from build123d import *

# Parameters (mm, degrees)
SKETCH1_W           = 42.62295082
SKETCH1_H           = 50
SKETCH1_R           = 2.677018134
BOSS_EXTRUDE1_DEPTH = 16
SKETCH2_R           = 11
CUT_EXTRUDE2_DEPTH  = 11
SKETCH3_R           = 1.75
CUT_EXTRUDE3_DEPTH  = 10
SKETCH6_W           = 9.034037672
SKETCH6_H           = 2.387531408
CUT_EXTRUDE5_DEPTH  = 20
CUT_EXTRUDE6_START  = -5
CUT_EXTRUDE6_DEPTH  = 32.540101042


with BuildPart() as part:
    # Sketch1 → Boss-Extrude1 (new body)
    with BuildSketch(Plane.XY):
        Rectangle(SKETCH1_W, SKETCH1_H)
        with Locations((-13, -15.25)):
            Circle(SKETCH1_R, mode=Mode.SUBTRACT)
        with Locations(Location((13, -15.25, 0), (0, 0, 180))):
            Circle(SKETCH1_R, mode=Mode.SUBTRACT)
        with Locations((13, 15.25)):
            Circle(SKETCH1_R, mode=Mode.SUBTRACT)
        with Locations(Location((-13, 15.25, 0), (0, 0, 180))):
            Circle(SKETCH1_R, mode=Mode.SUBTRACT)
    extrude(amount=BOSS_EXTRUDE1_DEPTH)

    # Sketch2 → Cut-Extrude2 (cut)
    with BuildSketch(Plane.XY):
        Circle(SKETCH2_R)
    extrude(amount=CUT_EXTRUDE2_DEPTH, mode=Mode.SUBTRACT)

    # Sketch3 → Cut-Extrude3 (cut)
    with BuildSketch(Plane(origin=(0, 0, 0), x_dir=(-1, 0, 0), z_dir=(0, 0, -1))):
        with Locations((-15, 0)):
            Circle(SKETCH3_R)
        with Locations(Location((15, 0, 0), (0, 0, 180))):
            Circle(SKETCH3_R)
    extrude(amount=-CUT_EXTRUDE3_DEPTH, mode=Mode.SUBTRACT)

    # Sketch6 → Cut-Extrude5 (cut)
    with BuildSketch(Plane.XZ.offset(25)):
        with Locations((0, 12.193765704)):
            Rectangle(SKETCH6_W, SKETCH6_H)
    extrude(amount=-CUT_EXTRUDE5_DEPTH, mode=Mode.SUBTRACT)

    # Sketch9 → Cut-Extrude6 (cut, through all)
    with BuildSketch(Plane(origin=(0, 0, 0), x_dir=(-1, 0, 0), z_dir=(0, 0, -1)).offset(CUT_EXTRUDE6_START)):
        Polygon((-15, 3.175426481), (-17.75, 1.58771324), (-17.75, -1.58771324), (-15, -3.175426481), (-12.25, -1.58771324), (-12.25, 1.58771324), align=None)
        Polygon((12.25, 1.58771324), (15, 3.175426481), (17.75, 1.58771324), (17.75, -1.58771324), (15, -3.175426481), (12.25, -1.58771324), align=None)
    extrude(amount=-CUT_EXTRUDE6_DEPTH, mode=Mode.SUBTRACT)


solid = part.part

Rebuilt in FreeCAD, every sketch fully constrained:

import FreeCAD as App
import Part
import Sketcher

V = App.Vector
Q = App.Units.Quantity


def add_polygon(sketch, points):
    """Adds a closed chain of lines whose ends are joined by coincident constraints."""
    first, n = sketch.GeometryCount, len(points)
    for a, b in zip(points, points[1:] + points[:1]):
        sketch.addGeometry(Part.LineSegment(App.Vector(*a, 0), App.Vector(*b, 0)), False)
    for i in range(n):
        sketch.addConstraint(Sketcher.Constraint("Coincident", first + i, 2, first + (i + 1) % n, 1))

doc = App.newDocument("Part")
body = doc.addObject("PartDesign::Body", "Body")

# Sketch on XY plane
sketch1 = body.newObject("Sketcher::SketchObject", "Sketch")
sketch1.AttachmentSupport = (doc.getObject("XY_Plane"), [""])
sketch1.MapMode = "FlatFace"
add_polygon(sketch1, [(-21.3, 25), (-21.3, -25), (21.3, -25), (21.3, 25)])  # lines 0-3
sketch1.addGeometry(Part.Circle(V(-13, -15.2, 0), V(0, 0, 1), 2.7), False)  # 4
sketch1.addGeometry(Part.Circle(V(13, -15.2, 0), V(0, 0, 1), 2.7), False)  # 5
sketch1.addGeometry(Part.Circle(V(-13, 15.2, 0), V(0, 0, 1), 2.7), False)  # 6
sketch1.addGeometry(Part.Circle(V(13, 15.2, 0), V(0, 0, 1), 2.7), False)  # 7
sketch1.addConstraint([
    Sketcher.Constraint("Vertical", 0),
    Sketcher.Constraint("Horizontal", 1),
    Sketcher.Constraint("Vertical", 2),
    Sketcher.Constraint("Horizontal", 3),
    Sketcher.Constraint("Equal", 4, 5),
    Sketcher.Constraint("Equal", 5, 6),
    Sketcher.Constraint("Equal", 6, 7),
    Sketcher.Constraint("Symmetric", 5, 3, 6, 3, -1, 1),
    Sketcher.Constraint("Symmetric", 4, 3, 7, 3, -1, 1),
    Sketcher.Constraint("Symmetric", 0, 2, 2, 2, -1, 1),
    Sketcher.Constraint("Symmetric", 4, 3, 5, 3, -2),
    Sketcher.Constraint("DistanceY", 0, 2, 0, 1, Q("50 mm")),
    Sketcher.Constraint("DistanceX", 4, 3, -1, 1, Q("13 mm")),
    Sketcher.Constraint("DistanceY", 4, 3, 6, 3, Q("30.5 mm")),
    Sketcher.Constraint("Diameter", 4, Q("5.354036 mm")),
    Sketcher.Constraint("DistanceX", 1, 1, 1, 2, Q("42.622951 mm")),
])
pad1 = body.newObject("PartDesign::Pad", "Pad")
pad1.Profile = sketch1
pad1.Length = 16

# Sketch on XY plane
sketch2 = body.newObject("Sketcher::SketchObject", "Sketch001")
sketch2.AttachmentSupport = (doc.getObject("XY_Plane"), [""])
sketch2.MapMode = "FlatFace"
sketch2.addGeometry(Part.Circle(V(0, 0, 0), V(0, 0, 1), 11), False)
sketch2.addConstraint([
    Sketcher.Constraint("Coincident", 0, 3, -1, 1),
    Sketcher.Constraint("Diameter", 0, Q("22 mm")),
])
pocket1 = body.newObject("PartDesign::Pocket", "Pocket")
pocket1.Profile = sketch2
pocket1.Length = 11
pocket1.Reversed = True

# Sketch on XY plane
sketch3 = body.newObject("Sketcher::SketchObject", "Sketch002")
sketch3.AttachmentSupport = (doc.getObject("XY_Plane"), [""])
sketch3.MapMode = "FlatFace"
sketch3.addGeometry([
    Part.Circle(V(15, 0, 0), V(0, 0, 1), 1.8),
    Part.Circle(V(-15, 0, 0), V(0, 0, 1), 1.8),
], False)
sketch3.addConstraint([
    Sketcher.Constraint("Equal", 0, 1),
    Sketcher.Constraint("Symmetric", 0, 3, 1, 3, -1, 1),
    Sketcher.Constraint("PointOnObject", 0, 3, -1),
    Sketcher.Constraint("Diameter", 0, Q("3.5 mm")),
    Sketcher.Constraint("DistanceX", -1, 1, 0, 3, Q("15 mm")),
])
pocket2 = body.newObject("PartDesign::Pocket", "Pocket001")
pocket2.Profile = sketch3
pocket2.Length = 10
pocket2.Reversed = True

# Sketch on XZ plane
sketch4 = body.newObject("Sketcher::SketchObject", "Sketch003")
sketch4.AttachmentSupport = (doc.getObject("XZ_Plane"), [""])
sketch4.MapMode = "FlatFace"
sketch4.AttachmentOffset = App.Placement(V(0, 0, 25), App.Rotation())
add_polygon(sketch4, [(-4.5, 13.4), (-4.5, 11), (4.5, 11), (4.5, 13.4)])  # lines 0-3
sketch4.addConstraint([
    Sketcher.Constraint("Vertical", 0),
    Sketcher.Constraint("Horizontal", 1),
    Sketcher.Constraint("Vertical", 2),
    Sketcher.Constraint("Horizontal", 3),
    Sketcher.Constraint("DistanceY", -1, 1, 0, 2, Q("11 mm")),
    Sketcher.Constraint("DistanceY", 0, 2, 0, 1, Q("2.387531 mm")),
    Sketcher.Constraint("DistanceX", 1, 1, 1, 2, Q("9.034038 mm")),
    Sketcher.Constraint("DistanceX", 0, 2, -1, 1, Q("4.517019 mm")),
])
pocket3 = body.newObject("PartDesign::Pocket", "Pocket002")
pocket3.Profile = sketch4
pocket3.Length = 20

# Sketch on XY plane
sketch5 = body.newObject("Sketcher::SketchObject", "Sketch004")
sketch5.AttachmentSupport = (doc.getObject("XY_Plane"), [""])
sketch5.MapMode = "FlatFace"
sketch5.AttachmentOffset = App.Placement(V(0, 0, 5), App.Rotation())
add_polygon(sketch5, [(15, 3.2), (17.8, 1.6), (17.8, -1.6), (15, -3.2), (12.2, -1.6), (12.2, 1.6)])  # lines 0-5
add_polygon(sketch5, [(-15, 3.2), (-12.2, 1.6), (-12.2, -1.6), (-15, -3.2), (-17.8, -1.6), (-17.8, 1.6)])  # lines 6-11
sketch5.addConstraint([
    Sketcher.Constraint("Vertical", 1),
    Sketcher.Constraint("Vertical", 4),
    Sketcher.Constraint("Vertical", 7),
    Sketcher.Constraint("Vertical", 10),
    Sketcher.Constraint("Symmetric", 3, 2, 6, 2, -1, 1),
    Sketcher.Constraint("Symmetric", 5, 2, 8, 2, -1, 1),
    Sketcher.Constraint("Symmetric", 0, 2, 9, 2, -1, 1),
    Sketcher.Constraint("Symmetric", 2, 2, 11, 2, -1, 1),
    Sketcher.Constraint("Symmetric", 2, 2, 8, 2, -2),
    Sketcher.Constraint("Parallel", 0, 3),
    Sketcher.Constraint("Parallel", 2, 5),
    Sketcher.Constraint("Parallel", 5, 8),
    Sketcher.Constraint("Parallel", 8, 11),
    Sketcher.Constraint("Horizontal", 1, 2, 3, 2),
    Sketcher.Constraint("Horizontal", 0, 2, 4, 2),
    Sketcher.Constraint("Angle", 0, Q("-30 deg")),
    Sketcher.Constraint("DistanceX", -1, 1, 2, 2, Q("15 mm")),
    Sketcher.Constraint("DistanceX", 3, 2, 1, 2, Q("5.5 mm")),
    Sketcher.Constraint("DistanceY", 1, 2, 1, 1, Q("3.175426 mm")),
])
pocket4 = body.newObject("PartDesign::Pocket", "Pocket003")
pocket4.Profile = sketch5
pocket4.Type = "ThroughAll"
pocket4.Reversed = True

doc.recompute()
